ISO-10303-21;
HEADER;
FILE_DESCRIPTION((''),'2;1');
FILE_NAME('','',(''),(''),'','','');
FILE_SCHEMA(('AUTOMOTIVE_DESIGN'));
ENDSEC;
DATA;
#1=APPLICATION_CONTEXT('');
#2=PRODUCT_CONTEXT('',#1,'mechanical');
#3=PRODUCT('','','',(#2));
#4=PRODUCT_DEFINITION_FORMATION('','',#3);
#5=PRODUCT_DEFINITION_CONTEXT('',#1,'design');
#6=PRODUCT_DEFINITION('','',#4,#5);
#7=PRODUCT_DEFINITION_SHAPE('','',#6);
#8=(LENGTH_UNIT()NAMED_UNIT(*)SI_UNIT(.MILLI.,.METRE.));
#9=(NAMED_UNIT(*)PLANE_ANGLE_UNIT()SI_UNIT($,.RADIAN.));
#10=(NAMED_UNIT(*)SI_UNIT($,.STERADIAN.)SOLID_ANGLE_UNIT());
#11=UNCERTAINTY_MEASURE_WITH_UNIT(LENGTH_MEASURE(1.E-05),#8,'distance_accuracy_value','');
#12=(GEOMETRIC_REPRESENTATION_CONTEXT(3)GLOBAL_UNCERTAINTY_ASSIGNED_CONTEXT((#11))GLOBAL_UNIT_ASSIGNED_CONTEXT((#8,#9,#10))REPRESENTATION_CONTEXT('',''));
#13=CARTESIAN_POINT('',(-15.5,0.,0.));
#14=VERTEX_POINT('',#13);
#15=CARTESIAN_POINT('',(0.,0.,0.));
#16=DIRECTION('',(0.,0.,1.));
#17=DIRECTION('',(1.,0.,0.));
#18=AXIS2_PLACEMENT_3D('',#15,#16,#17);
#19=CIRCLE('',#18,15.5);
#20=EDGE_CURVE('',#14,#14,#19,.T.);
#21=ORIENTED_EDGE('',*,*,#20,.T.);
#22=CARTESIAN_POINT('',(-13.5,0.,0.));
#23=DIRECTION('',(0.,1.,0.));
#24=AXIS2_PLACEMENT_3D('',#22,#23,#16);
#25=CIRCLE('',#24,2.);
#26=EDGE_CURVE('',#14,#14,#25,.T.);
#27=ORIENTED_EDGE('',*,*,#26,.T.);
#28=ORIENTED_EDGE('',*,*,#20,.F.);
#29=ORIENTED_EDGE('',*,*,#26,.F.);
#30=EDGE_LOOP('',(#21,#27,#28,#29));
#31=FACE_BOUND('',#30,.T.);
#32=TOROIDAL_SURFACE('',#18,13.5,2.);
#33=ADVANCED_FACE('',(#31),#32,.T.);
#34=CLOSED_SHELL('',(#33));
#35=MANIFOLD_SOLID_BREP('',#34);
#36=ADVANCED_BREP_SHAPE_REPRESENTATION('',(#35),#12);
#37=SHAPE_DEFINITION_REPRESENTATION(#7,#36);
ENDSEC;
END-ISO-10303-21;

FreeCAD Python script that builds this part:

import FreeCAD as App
import Part
import Sketcher
from FreeCAD import Vector

doc = App.newDocument("Part")
body = doc.addObject("PartDesign::Body", "Body")

sketch1 = body.newObject("Sketcher::SketchObject", "Sketch")
sketch1.AttachmentSupport = (doc.getObject("XZ_Plane"), [""])
sketch1.MapMode = "FlatFace"
sketch1.addGeometry(Part.Circle(Vector(-13.5, 0, 0), Vector(0, 0, 1), 2), False)
sketch1.addConstraint([
    Sketcher.Constraint("PointOnObject", 0, 3, -1),
    Sketcher.Constraint("Diameter", 0, 4.0),
    Sketcher.Constraint("DistanceX", 0, 3, -1, 1, 13.5),
])

sketch2 = body.newObject("Sketcher::SketchObject", "Sketch001")
sketch2.AttachmentSupport = (doc.getObject("XY_Plane"), [""])
sketch2.MapMode = "FlatFace"
sketch2.addGeometry(Part.Circle(Vector(0, 0, 0), Vector(0, 0, 1), 13.5), False)
sketch2.addConstraint([
    Sketcher.Constraint("Coincident", 0, 3, -1, 1),
    Sketcher.Constraint("Diameter", 0, 27.0),
])
doc.recompute()

additivepipe = body.newObject("PartDesign::AdditivePipe", "AdditivePipe")
additivepipe.Profile = sketch1
additivepipe.Spine = (sketch2, ["Edge1"])

doc.recompute()
